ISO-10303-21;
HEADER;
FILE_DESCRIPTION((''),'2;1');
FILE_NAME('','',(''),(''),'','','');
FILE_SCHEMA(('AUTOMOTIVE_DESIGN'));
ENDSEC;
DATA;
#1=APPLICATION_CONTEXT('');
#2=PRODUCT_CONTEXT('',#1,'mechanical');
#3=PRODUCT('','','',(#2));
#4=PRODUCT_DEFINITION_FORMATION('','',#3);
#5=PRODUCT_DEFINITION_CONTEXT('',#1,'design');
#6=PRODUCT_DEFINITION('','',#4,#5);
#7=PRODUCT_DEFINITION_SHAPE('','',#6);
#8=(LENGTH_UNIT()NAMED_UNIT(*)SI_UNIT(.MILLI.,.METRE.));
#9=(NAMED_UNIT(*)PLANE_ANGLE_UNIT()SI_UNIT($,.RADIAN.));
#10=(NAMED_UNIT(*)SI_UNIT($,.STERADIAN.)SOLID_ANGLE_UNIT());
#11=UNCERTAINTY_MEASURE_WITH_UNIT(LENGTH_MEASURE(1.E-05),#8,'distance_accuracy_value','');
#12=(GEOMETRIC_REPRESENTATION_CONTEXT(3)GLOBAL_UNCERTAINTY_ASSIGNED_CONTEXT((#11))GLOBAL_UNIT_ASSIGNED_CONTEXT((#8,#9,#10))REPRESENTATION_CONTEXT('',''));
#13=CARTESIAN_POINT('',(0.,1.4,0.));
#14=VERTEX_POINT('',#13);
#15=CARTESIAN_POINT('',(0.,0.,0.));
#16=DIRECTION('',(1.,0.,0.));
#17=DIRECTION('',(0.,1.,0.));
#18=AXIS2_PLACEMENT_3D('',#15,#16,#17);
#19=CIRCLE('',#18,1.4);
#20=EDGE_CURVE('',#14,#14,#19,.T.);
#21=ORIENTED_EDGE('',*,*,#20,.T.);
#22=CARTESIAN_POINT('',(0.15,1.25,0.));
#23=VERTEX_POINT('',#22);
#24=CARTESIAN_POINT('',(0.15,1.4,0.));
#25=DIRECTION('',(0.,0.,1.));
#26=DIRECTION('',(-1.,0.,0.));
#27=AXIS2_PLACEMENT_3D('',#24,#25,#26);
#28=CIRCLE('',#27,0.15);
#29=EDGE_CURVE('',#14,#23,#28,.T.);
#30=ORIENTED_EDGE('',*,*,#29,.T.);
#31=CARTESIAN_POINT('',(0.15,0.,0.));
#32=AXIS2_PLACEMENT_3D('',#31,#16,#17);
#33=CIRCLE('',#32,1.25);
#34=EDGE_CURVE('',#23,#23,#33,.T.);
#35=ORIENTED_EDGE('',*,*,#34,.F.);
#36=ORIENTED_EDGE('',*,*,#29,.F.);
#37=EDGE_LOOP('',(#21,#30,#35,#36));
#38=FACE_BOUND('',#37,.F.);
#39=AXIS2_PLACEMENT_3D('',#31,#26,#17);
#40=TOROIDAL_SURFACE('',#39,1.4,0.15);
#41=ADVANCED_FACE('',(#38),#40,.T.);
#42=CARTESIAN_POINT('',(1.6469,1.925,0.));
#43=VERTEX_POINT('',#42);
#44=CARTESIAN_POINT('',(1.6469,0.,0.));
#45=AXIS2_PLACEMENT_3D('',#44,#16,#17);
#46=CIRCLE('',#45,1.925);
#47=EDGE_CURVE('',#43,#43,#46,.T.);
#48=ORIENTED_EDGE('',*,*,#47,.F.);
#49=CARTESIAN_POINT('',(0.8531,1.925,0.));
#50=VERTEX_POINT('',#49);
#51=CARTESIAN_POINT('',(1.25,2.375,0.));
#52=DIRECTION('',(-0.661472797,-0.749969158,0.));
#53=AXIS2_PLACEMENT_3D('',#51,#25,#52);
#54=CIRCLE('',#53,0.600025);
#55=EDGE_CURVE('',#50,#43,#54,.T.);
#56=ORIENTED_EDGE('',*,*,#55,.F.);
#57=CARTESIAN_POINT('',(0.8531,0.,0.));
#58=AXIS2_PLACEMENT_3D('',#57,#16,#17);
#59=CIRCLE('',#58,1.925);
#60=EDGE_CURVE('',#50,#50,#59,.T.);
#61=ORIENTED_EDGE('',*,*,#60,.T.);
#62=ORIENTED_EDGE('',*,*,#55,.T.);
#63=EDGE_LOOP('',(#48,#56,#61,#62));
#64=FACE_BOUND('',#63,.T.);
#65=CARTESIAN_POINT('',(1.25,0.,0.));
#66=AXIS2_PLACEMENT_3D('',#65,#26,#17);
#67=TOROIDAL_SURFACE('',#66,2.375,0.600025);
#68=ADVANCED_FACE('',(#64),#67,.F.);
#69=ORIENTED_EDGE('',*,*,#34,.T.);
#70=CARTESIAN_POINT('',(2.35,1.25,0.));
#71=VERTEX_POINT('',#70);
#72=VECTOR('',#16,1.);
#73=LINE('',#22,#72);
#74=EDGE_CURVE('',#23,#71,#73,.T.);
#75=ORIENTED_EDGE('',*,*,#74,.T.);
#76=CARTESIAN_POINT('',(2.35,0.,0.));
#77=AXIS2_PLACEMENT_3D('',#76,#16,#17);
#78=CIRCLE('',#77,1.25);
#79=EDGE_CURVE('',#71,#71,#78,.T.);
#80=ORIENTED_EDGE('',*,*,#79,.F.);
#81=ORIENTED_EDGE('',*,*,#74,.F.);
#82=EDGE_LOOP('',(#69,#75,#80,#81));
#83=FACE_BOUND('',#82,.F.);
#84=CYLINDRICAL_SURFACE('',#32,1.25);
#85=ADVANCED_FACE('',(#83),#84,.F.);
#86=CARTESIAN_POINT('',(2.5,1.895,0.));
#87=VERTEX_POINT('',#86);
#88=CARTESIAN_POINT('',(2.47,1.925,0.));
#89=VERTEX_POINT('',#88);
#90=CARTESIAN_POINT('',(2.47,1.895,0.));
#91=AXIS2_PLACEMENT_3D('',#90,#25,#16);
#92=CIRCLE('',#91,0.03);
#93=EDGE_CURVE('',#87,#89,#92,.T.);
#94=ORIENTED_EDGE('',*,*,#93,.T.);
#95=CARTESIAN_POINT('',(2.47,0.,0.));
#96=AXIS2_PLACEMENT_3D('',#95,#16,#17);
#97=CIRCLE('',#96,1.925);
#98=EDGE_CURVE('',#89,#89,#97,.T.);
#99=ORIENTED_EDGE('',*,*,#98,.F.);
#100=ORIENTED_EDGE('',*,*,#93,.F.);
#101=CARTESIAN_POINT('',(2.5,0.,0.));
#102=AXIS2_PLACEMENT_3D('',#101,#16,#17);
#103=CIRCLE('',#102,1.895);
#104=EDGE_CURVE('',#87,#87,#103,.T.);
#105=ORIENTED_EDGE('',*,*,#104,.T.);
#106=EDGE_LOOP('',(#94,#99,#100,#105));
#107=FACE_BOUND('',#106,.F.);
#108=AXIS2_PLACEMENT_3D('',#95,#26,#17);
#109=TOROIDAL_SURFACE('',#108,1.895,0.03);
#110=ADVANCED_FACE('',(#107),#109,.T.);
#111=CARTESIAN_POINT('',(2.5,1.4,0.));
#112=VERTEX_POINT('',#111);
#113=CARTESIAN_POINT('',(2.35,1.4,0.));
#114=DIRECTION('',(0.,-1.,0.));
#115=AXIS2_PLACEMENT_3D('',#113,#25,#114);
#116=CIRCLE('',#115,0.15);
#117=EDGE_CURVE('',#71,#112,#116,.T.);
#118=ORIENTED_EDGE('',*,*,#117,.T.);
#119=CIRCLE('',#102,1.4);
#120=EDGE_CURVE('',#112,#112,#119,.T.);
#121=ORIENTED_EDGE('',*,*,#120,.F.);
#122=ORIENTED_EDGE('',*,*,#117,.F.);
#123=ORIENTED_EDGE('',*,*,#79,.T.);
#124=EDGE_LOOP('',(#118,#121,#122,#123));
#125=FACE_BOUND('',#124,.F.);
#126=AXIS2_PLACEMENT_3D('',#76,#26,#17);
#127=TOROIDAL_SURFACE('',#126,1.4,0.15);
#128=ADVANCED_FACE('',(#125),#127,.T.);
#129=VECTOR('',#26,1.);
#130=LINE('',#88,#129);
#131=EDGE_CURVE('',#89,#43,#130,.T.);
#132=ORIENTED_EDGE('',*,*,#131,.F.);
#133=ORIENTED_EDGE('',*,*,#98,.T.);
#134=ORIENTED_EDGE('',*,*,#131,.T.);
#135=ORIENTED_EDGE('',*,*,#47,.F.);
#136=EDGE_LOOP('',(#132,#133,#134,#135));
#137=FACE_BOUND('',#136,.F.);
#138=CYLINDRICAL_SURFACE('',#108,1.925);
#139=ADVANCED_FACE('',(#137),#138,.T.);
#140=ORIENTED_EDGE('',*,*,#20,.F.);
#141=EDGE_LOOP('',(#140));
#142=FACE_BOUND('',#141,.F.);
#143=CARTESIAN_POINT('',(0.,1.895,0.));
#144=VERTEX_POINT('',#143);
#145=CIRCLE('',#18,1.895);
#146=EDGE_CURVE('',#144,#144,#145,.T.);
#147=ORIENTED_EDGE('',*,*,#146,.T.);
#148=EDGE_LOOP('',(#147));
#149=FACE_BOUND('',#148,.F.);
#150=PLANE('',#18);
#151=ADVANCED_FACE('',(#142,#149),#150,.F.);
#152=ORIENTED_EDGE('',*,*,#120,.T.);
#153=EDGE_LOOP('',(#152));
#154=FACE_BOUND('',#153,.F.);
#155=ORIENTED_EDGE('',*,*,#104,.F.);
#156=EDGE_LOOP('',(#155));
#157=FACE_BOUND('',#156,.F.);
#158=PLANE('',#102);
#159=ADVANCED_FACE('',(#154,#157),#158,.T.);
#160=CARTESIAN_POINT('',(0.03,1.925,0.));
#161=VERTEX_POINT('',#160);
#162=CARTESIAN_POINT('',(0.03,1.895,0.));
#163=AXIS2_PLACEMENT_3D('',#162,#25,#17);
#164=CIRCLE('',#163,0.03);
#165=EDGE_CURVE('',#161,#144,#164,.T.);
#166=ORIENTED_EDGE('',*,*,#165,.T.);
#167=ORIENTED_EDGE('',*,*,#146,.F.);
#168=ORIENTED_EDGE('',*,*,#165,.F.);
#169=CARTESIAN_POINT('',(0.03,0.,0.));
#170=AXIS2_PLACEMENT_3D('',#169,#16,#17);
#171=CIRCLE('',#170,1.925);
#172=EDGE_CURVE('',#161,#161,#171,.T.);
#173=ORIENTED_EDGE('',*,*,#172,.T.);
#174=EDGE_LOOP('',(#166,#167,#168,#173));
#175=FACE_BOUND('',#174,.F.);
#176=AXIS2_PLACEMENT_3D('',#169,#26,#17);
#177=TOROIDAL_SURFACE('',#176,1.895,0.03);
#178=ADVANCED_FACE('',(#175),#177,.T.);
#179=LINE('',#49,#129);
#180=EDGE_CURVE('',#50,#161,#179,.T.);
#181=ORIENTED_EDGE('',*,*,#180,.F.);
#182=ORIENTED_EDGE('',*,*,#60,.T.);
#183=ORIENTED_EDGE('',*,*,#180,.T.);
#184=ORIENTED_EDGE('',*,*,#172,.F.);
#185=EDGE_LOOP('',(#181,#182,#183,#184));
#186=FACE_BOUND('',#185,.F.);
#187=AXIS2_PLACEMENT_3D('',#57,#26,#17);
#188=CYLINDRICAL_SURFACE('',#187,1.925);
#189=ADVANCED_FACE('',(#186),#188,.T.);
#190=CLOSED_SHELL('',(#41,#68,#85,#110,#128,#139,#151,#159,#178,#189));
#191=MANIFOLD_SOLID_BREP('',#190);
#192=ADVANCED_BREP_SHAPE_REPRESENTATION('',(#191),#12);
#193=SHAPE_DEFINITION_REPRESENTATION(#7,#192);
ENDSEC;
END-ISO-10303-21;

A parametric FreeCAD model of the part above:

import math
import FreeCAD as App
import Part
import Sketcher

V = App.Vector
Q = App.Units.Quantity

doc = App.newDocument("Part")
body = doc.addObject("PartDesign::Body", "Body")

# Sketch on XY plane
sketch1 = body.newObject("Sketcher::SketchObject", "Sketch")
sketch1.AttachmentSupport = (doc.getObject("XY_Plane"), [""])
sketch1.MapMode = "FlatFace"
sketch1.addGeometry([
    Part.ArcOfCircle(Part.Circle(V(0.03, 1.895, 0), V(0, 0, 1), 0.03), math.radians(90), math.radians(180)),  # 0
    Part.LineSegment(V(0, 1.895, 0), V(0, 1.4, 0)),  # 1
    Part.ArcOfCircle(Part.Circle(V(0.15, 1.4, 0), V(0, 0, 1), 0.15), math.radians(180), math.radians(270)),  # 2
    Part.LineSegment(V(0.15, 1.25, 0), V(2.35, 1.25, 0)),  # 3
    Part.ArcOfCircle(Part.Circle(V(2.35, 1.4, 0), V(0, 0, 1), 0.15), math.radians(-90), math.radians(0)),  # 4
    Part.LineSegment(V(2.5, 1.4, 0), V(2.5, 1.895, 0)),  # 5
    Part.ArcOfCircle(Part.Circle(V(2.47, 1.895, 0), V(0, 0, 1), 0.03), math.radians(0), math.radians(90)),  # 6
    Part.LineSegment(V(2.47, 1.925, 0), V(1.647, 1.925, 0)),  # 7
    Part.ArcOfCircle(Part.Circle(V(1.25, 2.375, 0), V(0, 0, 1), 0.6), math.radians(-131), math.radians(-49)),  # 8
    Part.LineSegment(V(0.853, 1.925, 0), V(0.03, 1.925, 0)),  # 9
], False)
sketch1.addConstraint([
    Sketcher.Constraint("Tangent", 0, 2, 1, 1),
    Sketcher.Constraint("Tangent", 1, 2, 2, 1),
    Sketcher.Constraint("Tangent", 2, 2, 3, 1),
    Sketcher.Constraint("Tangent", 3, 2, 4, 1),
    Sketcher.Constraint("Tangent", 4, 2, 5, 1),
    Sketcher.Constraint("Tangent", 5, 2, 6, 1),
    Sketcher.Constraint("Tangent", 6, 2, 7, 1),
    Sketcher.Constraint("Coincident", 7, 2, 8, 2),
    Sketcher.Constraint("Coincident", 8, 1, 9, 1),
    Sketcher.Constraint("Tangent", 9, 2, 0, 1),
    Sketcher.Constraint("Vertical", 1),
    Sketcher.Constraint("Horizontal", 3),
    Sketcher.Constraint("Vertical", 5),
    Sketcher.Constraint("Horizontal", 7),
    Sketcher.Constraint("Horizontal", 9),
    Sketcher.Constraint("Equal", 2, 4),
    Sketcher.Constraint("Equal", 0, 6),
    Sketcher.Constraint("PointOnObject", 0, 2, -2),
    Sketcher.Constraint("Horizontal", 0, 3, 6, 3),
    Sketcher.Constraint("Equal", 7, 9),
    Sketcher.Constraint("Radius", 8, Q("0.6 mm")),
    Sketcher.Constraint("Radius", 0, Q("0.03 mm")),
    Sketcher.Constraint("Radius", 2, Q("0.15 mm")),
    Sketcher.Constraint("DistanceX", 3, 1, 3, 2, Q("2.2 mm")),
    Sketcher.Constraint("DistanceY", -1, 1, 2, 3, Q("1.4 mm")),
    Sketcher.Constraint("DistanceX", 7, 2, 7, 1, Q("0.823 mm")),
    Sketcher.Constraint("DistanceY", 1, 2, 1, 1, Q("0.495 mm")),
])
revolution = body.newObject("PartDesign::Revolution", "Revolution")
revolution.Profile = sketch1
revolution.ReferenceAxis = (sketch1, ["H_Axis"])
revolution.Angle = 360

doc.recompute()
